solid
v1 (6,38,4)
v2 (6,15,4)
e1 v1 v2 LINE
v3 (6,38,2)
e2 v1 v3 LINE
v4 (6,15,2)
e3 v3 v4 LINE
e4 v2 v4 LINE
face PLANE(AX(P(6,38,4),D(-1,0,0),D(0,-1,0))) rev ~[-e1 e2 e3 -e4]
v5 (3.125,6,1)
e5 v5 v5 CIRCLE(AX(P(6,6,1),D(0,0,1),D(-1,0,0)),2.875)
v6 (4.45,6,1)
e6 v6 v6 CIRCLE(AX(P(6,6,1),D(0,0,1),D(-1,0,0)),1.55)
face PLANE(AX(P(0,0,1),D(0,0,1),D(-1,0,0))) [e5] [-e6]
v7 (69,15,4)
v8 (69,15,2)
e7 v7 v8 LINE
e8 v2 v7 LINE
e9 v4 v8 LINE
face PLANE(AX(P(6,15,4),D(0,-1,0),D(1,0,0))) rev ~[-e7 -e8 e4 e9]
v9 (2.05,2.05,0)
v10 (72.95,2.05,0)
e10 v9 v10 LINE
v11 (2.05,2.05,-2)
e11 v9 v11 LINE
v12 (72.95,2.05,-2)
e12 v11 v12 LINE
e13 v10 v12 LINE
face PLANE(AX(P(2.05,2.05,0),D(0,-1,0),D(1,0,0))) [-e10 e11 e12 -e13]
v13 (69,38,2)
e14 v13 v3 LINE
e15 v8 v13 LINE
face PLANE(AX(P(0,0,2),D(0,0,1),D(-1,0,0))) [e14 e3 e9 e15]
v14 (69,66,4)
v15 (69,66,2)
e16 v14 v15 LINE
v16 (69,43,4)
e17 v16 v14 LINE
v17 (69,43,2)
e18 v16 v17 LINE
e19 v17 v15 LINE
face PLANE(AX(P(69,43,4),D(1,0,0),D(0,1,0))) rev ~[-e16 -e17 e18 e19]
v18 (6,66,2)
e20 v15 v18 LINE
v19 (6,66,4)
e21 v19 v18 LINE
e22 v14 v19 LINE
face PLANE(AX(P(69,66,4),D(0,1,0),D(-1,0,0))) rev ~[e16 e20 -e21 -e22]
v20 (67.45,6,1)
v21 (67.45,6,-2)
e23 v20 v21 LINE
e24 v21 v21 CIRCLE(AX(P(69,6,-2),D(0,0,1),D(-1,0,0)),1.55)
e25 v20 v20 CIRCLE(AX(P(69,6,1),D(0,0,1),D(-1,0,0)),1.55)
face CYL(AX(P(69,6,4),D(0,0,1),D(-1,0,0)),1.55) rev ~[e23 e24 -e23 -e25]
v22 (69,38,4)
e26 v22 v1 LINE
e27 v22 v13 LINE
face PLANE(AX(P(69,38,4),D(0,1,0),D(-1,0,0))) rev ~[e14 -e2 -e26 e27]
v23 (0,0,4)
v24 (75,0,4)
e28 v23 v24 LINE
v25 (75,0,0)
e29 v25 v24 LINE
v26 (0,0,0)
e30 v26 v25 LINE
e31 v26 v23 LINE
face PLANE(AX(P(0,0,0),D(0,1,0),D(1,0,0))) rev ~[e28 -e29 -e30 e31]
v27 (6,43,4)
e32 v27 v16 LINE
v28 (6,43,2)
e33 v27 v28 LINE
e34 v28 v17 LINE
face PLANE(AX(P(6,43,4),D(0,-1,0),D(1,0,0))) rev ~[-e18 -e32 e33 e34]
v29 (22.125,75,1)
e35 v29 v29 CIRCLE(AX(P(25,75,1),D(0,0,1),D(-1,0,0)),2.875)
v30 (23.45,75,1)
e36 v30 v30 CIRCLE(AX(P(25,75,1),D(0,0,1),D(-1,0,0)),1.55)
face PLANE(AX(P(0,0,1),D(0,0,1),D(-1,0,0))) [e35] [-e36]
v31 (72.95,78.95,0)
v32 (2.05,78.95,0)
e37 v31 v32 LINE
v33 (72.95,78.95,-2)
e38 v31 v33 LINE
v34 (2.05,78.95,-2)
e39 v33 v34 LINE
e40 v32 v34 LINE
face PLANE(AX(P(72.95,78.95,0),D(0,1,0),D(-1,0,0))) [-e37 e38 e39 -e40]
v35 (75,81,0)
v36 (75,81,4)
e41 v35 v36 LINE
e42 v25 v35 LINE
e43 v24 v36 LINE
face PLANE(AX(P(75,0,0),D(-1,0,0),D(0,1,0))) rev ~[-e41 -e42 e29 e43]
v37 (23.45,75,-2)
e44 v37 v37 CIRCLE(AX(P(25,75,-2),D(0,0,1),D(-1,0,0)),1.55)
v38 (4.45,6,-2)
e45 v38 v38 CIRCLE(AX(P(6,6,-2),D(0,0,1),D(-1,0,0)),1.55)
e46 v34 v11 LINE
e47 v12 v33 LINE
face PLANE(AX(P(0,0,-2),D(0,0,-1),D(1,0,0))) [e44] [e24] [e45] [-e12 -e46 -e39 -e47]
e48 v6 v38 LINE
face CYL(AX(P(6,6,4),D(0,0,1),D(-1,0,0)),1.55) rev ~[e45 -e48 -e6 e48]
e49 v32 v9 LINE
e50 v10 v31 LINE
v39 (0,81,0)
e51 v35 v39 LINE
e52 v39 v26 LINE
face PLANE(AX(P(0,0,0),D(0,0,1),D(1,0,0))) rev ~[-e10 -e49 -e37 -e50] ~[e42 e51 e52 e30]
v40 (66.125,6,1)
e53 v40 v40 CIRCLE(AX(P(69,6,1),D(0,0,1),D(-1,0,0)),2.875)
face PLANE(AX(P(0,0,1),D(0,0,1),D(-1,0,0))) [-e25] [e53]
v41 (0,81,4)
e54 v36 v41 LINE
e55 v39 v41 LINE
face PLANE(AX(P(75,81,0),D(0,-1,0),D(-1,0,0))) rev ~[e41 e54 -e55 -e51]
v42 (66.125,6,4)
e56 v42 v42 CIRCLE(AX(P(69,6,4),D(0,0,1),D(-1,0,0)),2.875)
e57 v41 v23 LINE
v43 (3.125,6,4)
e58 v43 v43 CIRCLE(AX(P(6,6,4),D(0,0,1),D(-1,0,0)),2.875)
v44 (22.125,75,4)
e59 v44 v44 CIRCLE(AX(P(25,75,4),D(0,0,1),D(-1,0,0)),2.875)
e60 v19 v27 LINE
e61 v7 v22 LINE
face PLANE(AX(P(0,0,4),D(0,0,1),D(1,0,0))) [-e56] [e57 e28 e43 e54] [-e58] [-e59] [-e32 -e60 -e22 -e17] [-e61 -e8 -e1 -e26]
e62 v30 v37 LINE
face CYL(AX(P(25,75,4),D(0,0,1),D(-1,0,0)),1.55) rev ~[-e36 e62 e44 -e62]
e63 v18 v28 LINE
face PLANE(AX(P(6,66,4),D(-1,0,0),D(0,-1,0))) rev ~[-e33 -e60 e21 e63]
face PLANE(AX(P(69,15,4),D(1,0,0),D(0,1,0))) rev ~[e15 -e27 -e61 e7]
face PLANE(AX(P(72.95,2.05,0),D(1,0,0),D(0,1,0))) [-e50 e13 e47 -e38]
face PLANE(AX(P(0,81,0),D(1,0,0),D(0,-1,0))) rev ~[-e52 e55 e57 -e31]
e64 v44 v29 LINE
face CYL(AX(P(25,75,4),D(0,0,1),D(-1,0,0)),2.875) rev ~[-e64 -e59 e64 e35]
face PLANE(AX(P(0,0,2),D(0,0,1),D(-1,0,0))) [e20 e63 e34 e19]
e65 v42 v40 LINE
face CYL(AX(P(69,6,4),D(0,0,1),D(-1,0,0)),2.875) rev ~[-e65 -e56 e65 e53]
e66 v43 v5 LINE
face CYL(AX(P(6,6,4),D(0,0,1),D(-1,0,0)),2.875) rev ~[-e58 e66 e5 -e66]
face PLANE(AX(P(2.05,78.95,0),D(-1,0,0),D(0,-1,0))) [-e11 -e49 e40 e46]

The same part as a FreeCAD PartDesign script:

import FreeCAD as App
import Part
import Sketcher

doc = App.newDocument("Part")
body = doc.addObject("PartDesign::Body", "Body")

# Sketch on XY plane
sketch1 = body.newObject("Sketcher::SketchObject", "Sketch")
sketch1.AttachmentSupport = (doc.getObject("XY_Plane"), [""])
sketch1.MapMode = "FlatFace"
sketch1.addGeometry(Part.LineSegment(App.Vector(0, 81, 0), App.Vector(0, 0, 0)), False)
sketch1.addGeometry(Part.LineSegment(App.Vector(0, 0, 0), App.Vector(75, 0, 0)), False)
sketch1.addGeometry(Part.LineSegment(App.Vector(75, 0, 0), App.Vector(75, 81, 0)), False)
sketch1.addGeometry(Part.LineSegment(App.Vector(75, 81, 0), App.Vector(0, 81, 0)), False)
sketch1.addConstraint(Sketcher.Constraint("Coincident", 0, 2, 1, 1))
sketch1.addConstraint(Sketcher.Constraint("Coincident", 1, 2, 2, 1))
sketch1.addConstraint(Sketcher.Constraint("Coincident", 2, 2, 3, 1))
sketch1.addConstraint(Sketcher.Constraint("Coincident", 3, 2, 0, 1))
sketch1.addConstraint(Sketcher.Constraint("Vertical", 0))
sketch1.addConstraint(Sketcher.Constraint("Horizontal", 1))
sketch1.addConstraint(Sketcher.Constraint("Vertical", 2))
sketch1.addConstraint(Sketcher.Constraint("Horizontal", 3))
sketch1.addConstraint(Sketcher.Constraint("Coincident", 0, 2, -1, 1))
sketch1.addConstraint(Sketcher.Constraint("DistanceX", 1, 1, 1, 2, 75.0))
sketch1.addConstraint(Sketcher.Constraint("DistanceY", 0, 2, 0, 1, 81.0))
pad1 = body.newObject("PartDesign::Pad", "Pad")
pad1.Profile = sketch1
pad1.Length = 4

# Sketch on XY plane
sketch2 = body.newObject("Sketcher::SketchObject", "Sketch001")
sketch2.AttachmentSupport = (doc.getObject("XY_Plane"), [""])
sketch2.MapMode = "FlatFace"
sketch2.addGeometry(Part.LineSegment(App.Vector(2.05, 78.95, 0), App.Vector(72.95, 78.95, 0)), False)
sketch2.addGeometry(Part.LineSegment(App.Vector(72.95, 78.95, 0), App.Vector(72.95, 2.05, 0)), False)
sketch2.addGeometry(Part.LineSegment(App.Vector(72.95, 2.05, 0), App.Vector(2.05, 2.05, 0)), False)
sketch2.addGeometry(Part.LineSegment(App.Vector(2.05, 2.05, 0), App.Vector(2.05, 78.95, 0)), False)
sketch2.addConstraint(Sketcher.Constraint("Coincident", 0, 2, 1, 1))
sketch2.addConstraint(Sketcher.Constraint("Coincident", 1, 2, 2, 1))
sketch2.addConstraint(Sketcher.Constraint("Coincident", 2, 2, 3, 1))
sketch2.addConstraint(Sketcher.Constraint("Coincident", 3, 2, 0, 1))
sketch2.addConstraint(Sketcher.Constraint("Horizontal", 0))
sketch2.addConstraint(Sketcher.Constraint("Vertical", 1))
sketch2.addConstraint(Sketcher.Constraint("Horizontal", 2))
sketch2.addConstraint(Sketcher.Constraint("Vertical", 3))
sketch2.addConstraint(Sketcher.Constraint("DistanceY", -1, 1, 1, 2, 2.05))
sketch2.addConstraint(Sketcher.Constraint("DistanceX", -1, 1, 2, 2, 2.05))
sketch2.addConstraint(Sketcher.Constraint("DistanceX", 0, 1, 0, 2, 70.9))
sketch2.addConstraint(Sketcher.Constraint("DistanceY", 1, 2, 1, 1, 76.9))
pad2 = body.newObject("PartDesign::Pad", "Pad001")
pad2.Profile = sketch2
pad2.Length = 2
pad2.Reversed = True

# Sketch on XY plane
sketch3 = body.newObject("Sketcher::SketchObject", "Sketch002")
sketch3.AttachmentSupport = (doc.getObject("XY_Plane"), [""])
sketch3.MapMode = "FlatFace"
sketch3.AttachmentOffset = App.Placement(App.Vector(0, 0, 4), App.Rotation())
sketch3.addGeometry(Part.Circle(App.Vector(6, 6, 0), App.Vector(0, 0, 1), 2.875), False)
sketch3.addGeometry(Part.Circle(App.Vector(69, 6, 0), App.Vector(0, 0, 1), 2.875), False)
sketch3.addGeometry(Part.Circle(App.Vector(25, 75, 0), App.Vector(0, 0, 1), 2.875), False)
sketch3.addConstraint(Sketcher.Constraint("Equal", 0, 1))
sketch3.addConstraint(Sketcher.Constraint("Equal", 1, 2))
sketch3.addConstraint(Sketcher.Constraint("Horizontal", 0, 3, 1, 3))
sketch3.addConstraint(Sketcher.Constraint("Diameter", 0, 5.75))
sketch3.addConstraint(Sketcher.Constraint("DistanceX", -1, 1, 0, 3, 6.0))
sketch3.addConstraint(Sketcher.Constraint("DistanceY", -1, 1, 0, 3, 6.0))
sketch3.addConstraint(Sketcher.Constraint("DistanceX", -1, 1, 2, 3, 25.0))
sketch3.addConstraint(Sketcher.Constraint("DistanceX", -1, 1, 1, 3, 69.0))
sketch3.addConstraint(Sketcher.Constraint("DistanceY", -1, 1, 2, 3, 75.0))
pocket1 = body.newObject("PartDesign::Pocket", "Pocket")
pocket1.Profile = sketch3
pocket1.Length = 3

# Sketch on XY plane
sketch4 = body.newObject("Sketcher::SketchObject", "Sketch003")
sketch4.AttachmentSupport = (doc.getObject("XY_Plane"), [""])
sketch4.MapMode = "FlatFace"
sketch4.AttachmentOffset = App.Placement(App.Vector(0, 0, 4), App.Rotation())
sketch4.addGeometry(Part.Circle(App.Vector(6, 6, 0), App.Vector(0, 0, 1), 1.55), False)
sketch4.addGeometry(Part.Circle(App.Vector(69, 6, 0), App.Vector(0, 0, 1), 1.55), False)
sketch4.addGeometry(Part.Circle(App.Vector(25, 75, 0), App.Vector(0, 0, 1), 1.55), False)
sketch4.addConstraint(Sketcher.Constraint("Equal", 0, 1))
sketch4.addConstraint(Sketcher.Constraint("Equal", 1, 2))
sketch4.addConstraint(Sketcher.Constraint("Horizontal", 0, 3, 1, 3))
sketch4.addConstraint(Sketcher.Constraint("Diameter", 0, 3.1))
sketch4.addConstraint(Sketcher.Constraint("DistanceX", -1, 1, 0, 3, 6.0))
sketch4.addConstraint(Sketcher.Constraint("DistanceY", -1, 1, 0, 3, 6.0))
sketch4.addConstraint(Sketcher.Constraint("DistanceX", -1, 1, 1, 3, 69.0))
sketch4.addConstraint(Sketcher.Constraint("DistanceX", -1, 1, 2, 3, 25.0))
sketch4.addConstraint(Sketcher.Constraint("DistanceY", -1, 1, 2, 3, 75.0))
pocket2 = body.newObject("PartDesign::Pocket", "Pocket001")
pocket2.Profile = sketch4
pocket2.Length = 16

# Sketch on XY plane
sketch5 = body.newObject("Sketcher::SketchObject", "Sketch004")
sketch5.AttachmentSupport = (doc.getObject("XY_Plane"), [""])
sketch5.MapMode = "FlatFace"
sketch5.AttachmentOffset = App.Placement(App.Vector(0, 0, 4), App.Rotation())
sketch5.addGeometry(Part.LineSegment(App.Vector(69, 43, 0), App.Vector(69, 66, 0)), False)
sketch5.addGeometry(Part.LineSegment(App.Vector(69, 66, 0), App.Vector(6, 66, 0)), False)
sketch5.addGeometry(Part.LineSegment(App.Vector(6, 66, 0), App.Vector(6, 43, 0)), False)
sketch5.addGeometry(Part.LineSegment(App.Vector(6, 43, 0), App.Vector(69, 43, 0)), False)
sketch5.addGeometry(Part.LineSegment(App.Vector(69, 15, 0), App.Vector(69, 38, 0)), False)
sketch5.addGeometry(Part.LineSegment(App.Vector(69, 38, 0), App.Vector(6, 38, 0)), False)
sketch5.addGeometry(Part.LineSegment(App.Vector(6, 38, 0), App.Vector(6, 15, 0)), False)
sketch5.addGeometry(Part.LineSegment(App.Vector(6, 15, 0), App.Vector(69, 15, 0)), False)
sketch5.addConstraint(Sketcher.Constraint("Coincident", 0, 2, 1, 1))
sketch5.addConstraint(Sketcher.Constraint("Coincident", 1, 2, 2, 1))
sketch5.addConstraint(Sketcher.Constraint("Coincident", 2, 2, 3, 1))
sketch5.addConstraint(Sketcher.Constraint("Coincident", 3, 2, 0, 1))
sketch5.addConstraint(Sketcher.Constraint("Coincident", 4, 2, 5, 1))
sketch5.addConstraint(Sketcher.Constraint("Coincident", 5, 2, 6, 1))
sketch5.addConstraint(Sketcher.Constraint("Coincident", 6, 2, 7, 1))
sketch5.addConstraint(Sketcher.Constraint("Coincident", 7, 2, 4, 1))
sketch5.addConstraint(Sketcher.Constraint("Vertical", 0))
sketch5.addConstraint(Sketcher.Constraint("Horizontal", 1))
sketch5.addConstraint(Sketcher.Constraint("Vertical", 2))
sketch5.addConstraint(Sketcher.Constraint("Horizontal", 3))
sketch5.addConstraint(Sketcher.Constraint("Vertical", 4))
sketch5.addConstraint(Sketcher.Constraint("Horizontal", 5))
sketch5.addConstraint(Sketcher.Constraint("Vertical", 6))
sketch5.addConstraint(Sketcher.Constraint("Horizontal", 7))
sketch5.addConstraint(Sketcher.Constraint("Vertical", 3, 2, 4, 2))
sketch5.addConstraint(Sketcher.Constraint("Vertical", 2, 2, 5, 2))
sketch5.addConstraint(Sketcher.Constraint("Equal", 2, 4))
sketch5.addConstraint(Sketcher.Constraint("DistanceY", 0, 1, 0, 2, 23.0))
sketch5.addConstraint(Sketcher.Constraint("DistanceX", -1, 1, 1, 2, 6.0))
sketch5.addConstraint(Sketcher.Constraint("DistanceY", -1, 1, 6, 2, 15.0))
sketch5.addConstraint(Sketcher.Constraint("DistanceX", 1, 2, 1, 1, 63.0))
sketch5.addConstraint(Sketcher.Constraint("DistanceY", -1, 1, 0, 2, 66.0))
pocket3 = body.newObject("PartDesign::Pocket", "Pocket002")
pocket3.Profile = sketch5
pocket3.Length = 2

doc.recompute()
